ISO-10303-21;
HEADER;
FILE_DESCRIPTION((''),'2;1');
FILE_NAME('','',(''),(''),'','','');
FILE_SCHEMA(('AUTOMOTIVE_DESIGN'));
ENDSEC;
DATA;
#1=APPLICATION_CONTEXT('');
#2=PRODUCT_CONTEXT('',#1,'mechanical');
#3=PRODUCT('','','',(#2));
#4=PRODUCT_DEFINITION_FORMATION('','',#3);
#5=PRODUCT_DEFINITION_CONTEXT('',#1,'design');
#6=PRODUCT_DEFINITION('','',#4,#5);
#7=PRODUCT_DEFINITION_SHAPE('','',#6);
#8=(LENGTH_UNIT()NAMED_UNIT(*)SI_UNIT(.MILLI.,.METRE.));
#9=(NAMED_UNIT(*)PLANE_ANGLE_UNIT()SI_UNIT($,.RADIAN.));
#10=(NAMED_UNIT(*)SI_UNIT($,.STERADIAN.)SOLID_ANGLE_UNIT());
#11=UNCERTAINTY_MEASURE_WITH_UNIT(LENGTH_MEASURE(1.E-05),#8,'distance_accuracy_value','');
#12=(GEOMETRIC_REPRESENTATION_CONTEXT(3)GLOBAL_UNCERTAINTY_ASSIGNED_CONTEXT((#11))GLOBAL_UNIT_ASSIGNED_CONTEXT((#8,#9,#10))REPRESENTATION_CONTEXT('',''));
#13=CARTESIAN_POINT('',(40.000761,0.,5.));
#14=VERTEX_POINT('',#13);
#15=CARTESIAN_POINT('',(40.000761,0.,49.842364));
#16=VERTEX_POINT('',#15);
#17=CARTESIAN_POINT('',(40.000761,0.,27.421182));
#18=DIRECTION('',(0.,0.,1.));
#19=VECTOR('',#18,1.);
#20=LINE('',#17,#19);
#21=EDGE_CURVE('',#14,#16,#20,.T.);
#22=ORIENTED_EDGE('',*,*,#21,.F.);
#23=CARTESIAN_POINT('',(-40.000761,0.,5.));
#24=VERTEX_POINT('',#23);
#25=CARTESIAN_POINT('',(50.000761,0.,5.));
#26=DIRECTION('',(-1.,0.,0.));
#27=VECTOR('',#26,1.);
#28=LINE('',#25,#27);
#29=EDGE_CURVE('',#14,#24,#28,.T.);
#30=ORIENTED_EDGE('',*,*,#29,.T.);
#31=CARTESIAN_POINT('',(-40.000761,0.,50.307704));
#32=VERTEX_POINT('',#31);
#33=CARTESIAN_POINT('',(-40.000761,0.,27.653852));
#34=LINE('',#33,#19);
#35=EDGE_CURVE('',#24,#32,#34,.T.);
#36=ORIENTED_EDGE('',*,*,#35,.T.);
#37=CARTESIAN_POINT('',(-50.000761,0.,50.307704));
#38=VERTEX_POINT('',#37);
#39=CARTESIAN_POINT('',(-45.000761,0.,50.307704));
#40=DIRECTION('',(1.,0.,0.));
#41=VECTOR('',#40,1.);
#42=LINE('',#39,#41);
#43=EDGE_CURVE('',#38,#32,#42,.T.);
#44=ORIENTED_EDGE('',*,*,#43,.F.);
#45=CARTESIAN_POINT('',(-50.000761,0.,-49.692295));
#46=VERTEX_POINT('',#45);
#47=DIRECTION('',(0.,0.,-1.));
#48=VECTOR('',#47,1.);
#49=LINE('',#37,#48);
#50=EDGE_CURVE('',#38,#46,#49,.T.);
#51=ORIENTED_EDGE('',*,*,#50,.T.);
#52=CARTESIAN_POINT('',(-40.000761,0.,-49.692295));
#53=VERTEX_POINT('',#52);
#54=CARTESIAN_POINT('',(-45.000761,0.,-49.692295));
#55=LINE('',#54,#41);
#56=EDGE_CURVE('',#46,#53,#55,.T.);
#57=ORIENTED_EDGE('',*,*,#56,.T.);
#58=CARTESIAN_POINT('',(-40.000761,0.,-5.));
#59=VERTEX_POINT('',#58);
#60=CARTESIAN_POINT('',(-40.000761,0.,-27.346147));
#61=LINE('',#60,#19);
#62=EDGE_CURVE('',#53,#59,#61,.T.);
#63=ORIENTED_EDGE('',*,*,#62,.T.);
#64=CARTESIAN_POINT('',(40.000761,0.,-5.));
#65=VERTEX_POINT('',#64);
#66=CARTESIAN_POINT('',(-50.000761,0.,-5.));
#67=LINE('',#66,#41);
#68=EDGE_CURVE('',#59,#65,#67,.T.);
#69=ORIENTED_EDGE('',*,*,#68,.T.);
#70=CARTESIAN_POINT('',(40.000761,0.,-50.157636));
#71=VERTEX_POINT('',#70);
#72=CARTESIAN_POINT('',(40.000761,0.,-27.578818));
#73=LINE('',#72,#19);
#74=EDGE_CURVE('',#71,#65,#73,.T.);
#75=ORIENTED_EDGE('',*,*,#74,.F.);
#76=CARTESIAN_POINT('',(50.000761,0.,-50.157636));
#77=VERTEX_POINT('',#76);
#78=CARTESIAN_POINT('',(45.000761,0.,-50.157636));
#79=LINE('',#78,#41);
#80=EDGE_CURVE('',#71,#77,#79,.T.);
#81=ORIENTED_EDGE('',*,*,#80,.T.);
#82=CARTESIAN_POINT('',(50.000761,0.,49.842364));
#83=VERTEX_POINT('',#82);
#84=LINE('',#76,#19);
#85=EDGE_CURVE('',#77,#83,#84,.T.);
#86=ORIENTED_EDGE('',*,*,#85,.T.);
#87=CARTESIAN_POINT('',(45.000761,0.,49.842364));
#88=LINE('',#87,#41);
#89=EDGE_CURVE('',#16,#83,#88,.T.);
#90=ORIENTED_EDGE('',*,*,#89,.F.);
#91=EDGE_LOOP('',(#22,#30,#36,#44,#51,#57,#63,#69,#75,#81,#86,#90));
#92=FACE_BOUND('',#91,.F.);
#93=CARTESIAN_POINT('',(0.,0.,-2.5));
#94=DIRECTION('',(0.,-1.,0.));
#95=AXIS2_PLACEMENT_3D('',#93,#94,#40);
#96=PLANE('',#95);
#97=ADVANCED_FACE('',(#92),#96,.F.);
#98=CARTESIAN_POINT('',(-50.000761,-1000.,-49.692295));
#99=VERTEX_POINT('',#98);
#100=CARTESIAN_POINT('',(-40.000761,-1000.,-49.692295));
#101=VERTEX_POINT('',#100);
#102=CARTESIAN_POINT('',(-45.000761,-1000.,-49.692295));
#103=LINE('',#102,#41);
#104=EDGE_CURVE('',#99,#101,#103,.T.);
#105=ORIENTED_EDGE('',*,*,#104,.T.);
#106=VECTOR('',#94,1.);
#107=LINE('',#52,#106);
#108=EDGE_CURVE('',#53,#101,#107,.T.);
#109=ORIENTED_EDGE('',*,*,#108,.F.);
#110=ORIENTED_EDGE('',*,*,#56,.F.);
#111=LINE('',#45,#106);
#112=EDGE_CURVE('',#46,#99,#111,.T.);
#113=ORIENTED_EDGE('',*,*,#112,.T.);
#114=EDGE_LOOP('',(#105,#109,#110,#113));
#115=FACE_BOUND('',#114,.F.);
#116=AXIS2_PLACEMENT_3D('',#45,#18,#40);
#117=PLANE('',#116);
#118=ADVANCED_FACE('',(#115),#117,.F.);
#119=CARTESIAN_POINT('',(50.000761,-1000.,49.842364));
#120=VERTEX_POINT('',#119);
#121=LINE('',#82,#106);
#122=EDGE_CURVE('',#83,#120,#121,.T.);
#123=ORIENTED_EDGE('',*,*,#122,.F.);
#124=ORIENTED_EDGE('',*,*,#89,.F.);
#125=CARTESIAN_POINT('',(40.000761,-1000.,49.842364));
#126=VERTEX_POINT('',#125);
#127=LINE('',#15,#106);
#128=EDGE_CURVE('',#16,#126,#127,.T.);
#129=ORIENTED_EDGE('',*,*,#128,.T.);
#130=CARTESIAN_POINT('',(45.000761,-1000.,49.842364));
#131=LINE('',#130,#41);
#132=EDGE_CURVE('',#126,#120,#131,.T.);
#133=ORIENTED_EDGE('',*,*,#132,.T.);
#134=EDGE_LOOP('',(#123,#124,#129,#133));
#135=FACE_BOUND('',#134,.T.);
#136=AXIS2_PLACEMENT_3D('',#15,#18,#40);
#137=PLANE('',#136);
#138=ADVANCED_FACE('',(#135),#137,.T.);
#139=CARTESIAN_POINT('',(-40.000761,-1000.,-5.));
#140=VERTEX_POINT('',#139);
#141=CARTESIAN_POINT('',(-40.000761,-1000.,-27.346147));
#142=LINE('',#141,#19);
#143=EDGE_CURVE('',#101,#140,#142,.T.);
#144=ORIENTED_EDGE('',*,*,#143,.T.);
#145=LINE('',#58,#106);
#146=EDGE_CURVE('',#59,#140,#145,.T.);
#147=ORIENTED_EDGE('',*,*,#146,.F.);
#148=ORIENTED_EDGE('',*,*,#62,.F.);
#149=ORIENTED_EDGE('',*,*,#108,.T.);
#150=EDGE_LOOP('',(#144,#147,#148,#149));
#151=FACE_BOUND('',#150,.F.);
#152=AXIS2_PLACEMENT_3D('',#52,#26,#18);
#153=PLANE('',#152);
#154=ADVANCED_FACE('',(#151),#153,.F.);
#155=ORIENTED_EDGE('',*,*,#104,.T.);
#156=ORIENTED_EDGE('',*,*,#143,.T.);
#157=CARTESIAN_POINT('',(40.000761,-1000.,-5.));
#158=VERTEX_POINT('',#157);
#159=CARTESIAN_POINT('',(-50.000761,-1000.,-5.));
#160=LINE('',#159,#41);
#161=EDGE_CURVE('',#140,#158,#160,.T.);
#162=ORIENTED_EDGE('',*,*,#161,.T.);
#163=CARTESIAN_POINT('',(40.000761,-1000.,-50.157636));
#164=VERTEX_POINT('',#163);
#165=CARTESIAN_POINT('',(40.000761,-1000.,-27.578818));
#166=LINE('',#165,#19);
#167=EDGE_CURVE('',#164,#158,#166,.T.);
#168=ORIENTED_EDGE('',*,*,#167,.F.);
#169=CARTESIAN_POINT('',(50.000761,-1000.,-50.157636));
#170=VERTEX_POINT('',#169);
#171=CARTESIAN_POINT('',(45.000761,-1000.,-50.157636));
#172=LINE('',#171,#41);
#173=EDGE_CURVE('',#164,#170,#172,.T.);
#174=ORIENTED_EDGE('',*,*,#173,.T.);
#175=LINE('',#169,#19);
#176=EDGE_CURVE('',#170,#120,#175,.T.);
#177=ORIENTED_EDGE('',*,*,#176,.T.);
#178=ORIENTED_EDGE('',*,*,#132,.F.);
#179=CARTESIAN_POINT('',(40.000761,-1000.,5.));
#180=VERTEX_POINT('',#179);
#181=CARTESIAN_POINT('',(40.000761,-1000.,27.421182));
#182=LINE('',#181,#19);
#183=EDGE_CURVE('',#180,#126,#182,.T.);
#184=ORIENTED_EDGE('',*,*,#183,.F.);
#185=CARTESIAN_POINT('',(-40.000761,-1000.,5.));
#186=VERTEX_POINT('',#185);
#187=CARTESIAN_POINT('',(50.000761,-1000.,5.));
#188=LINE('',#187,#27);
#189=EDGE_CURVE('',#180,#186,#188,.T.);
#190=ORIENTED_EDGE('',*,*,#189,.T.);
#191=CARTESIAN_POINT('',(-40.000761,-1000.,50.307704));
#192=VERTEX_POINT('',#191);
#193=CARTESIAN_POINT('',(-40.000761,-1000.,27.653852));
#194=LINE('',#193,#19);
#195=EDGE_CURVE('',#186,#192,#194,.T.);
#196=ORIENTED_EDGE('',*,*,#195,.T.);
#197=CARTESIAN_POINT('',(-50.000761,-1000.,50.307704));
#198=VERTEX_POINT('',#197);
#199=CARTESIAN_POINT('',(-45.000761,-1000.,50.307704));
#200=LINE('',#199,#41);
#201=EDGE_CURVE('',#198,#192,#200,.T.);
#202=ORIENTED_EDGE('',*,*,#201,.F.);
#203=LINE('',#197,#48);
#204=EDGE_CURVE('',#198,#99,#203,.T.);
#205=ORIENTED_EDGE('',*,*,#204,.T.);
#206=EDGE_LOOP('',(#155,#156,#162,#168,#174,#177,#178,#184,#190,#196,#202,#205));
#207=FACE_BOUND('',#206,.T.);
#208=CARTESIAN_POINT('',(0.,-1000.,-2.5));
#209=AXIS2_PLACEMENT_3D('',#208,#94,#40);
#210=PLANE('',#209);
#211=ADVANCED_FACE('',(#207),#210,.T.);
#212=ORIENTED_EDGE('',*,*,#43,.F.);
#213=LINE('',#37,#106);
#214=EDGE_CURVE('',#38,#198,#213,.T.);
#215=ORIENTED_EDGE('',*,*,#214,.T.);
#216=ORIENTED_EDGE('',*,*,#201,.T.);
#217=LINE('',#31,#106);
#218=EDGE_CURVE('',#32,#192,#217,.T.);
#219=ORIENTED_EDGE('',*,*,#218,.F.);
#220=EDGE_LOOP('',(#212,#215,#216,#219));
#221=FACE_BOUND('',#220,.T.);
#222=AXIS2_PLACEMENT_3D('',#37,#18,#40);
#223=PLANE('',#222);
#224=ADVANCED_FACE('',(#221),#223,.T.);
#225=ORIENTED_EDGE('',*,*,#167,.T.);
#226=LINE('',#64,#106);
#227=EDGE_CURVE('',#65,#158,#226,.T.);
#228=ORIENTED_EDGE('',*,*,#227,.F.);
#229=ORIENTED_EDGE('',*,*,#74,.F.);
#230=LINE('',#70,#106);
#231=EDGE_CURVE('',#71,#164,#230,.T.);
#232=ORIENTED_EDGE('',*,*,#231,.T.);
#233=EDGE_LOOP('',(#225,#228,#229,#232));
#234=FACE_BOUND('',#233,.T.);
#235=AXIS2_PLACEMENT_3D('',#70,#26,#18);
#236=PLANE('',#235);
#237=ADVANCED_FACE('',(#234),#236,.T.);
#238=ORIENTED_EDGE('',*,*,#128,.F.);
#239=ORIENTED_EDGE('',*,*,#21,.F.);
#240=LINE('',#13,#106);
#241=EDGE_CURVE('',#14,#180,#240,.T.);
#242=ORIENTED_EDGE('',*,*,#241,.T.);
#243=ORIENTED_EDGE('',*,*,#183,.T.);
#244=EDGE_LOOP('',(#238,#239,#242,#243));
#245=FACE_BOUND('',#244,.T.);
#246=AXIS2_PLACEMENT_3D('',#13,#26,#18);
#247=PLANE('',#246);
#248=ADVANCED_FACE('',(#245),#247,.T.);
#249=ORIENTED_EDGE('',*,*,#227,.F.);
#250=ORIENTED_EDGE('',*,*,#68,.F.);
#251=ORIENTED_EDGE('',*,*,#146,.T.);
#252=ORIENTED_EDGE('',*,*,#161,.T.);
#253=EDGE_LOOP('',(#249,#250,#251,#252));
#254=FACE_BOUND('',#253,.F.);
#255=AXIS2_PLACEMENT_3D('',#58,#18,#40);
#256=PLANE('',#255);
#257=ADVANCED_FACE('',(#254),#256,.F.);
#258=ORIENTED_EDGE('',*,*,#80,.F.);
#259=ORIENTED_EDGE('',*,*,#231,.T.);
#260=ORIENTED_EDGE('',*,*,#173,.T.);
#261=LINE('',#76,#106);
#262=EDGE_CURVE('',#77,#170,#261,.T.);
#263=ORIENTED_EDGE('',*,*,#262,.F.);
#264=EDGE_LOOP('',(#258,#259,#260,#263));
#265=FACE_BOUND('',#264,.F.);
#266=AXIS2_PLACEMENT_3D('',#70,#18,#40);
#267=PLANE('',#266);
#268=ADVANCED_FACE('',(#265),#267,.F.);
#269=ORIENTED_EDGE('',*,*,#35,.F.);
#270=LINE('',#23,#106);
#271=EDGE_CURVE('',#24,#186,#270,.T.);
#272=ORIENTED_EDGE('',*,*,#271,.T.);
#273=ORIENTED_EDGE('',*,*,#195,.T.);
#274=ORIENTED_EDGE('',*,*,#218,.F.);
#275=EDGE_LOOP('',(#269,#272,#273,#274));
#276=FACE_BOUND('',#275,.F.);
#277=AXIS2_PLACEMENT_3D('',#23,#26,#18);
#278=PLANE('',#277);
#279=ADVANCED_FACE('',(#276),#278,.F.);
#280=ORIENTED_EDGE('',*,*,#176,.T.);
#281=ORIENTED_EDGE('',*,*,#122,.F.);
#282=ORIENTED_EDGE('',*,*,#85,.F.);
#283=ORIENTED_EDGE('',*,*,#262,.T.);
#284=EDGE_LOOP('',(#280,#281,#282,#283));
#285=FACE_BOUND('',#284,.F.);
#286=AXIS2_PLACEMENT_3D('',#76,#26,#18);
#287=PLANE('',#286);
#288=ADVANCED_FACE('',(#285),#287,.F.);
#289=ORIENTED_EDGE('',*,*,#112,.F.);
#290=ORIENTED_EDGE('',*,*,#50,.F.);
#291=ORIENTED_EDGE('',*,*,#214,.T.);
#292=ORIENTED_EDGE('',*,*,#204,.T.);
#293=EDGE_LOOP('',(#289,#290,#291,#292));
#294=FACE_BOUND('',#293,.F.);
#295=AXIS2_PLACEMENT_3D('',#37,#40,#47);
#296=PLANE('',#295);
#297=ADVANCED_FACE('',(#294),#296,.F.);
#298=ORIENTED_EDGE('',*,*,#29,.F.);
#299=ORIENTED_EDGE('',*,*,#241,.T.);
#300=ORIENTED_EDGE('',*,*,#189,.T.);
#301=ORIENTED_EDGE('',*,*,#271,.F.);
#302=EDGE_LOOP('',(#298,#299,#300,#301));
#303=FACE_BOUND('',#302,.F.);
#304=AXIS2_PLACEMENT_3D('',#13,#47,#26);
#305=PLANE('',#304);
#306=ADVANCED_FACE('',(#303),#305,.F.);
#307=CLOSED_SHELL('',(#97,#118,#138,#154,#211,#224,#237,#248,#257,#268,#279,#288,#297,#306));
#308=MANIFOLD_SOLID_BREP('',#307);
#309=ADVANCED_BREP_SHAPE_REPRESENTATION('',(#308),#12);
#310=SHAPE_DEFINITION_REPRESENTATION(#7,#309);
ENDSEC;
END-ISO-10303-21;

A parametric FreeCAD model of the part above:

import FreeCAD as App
import Part
import Sketcher
Q = App.Units.Quantity

doc = App.newDocument("Part")
body = doc.addObject("PartDesign::Body", "Body")

sketch1 = body.newObject("Sketcher::SketchObject", "Sketch")
sketch1.AttachmentSupport = (doc.getObject("XZ_Plane"), [""])
sketch1.MapMode = "FlatFace"
sketch1.addGeometry([
    Part.LineSegment(App.Vector(-40.000761, -5, 0), App.Vector(40.000761, -5, 0)),
    Part.LineSegment(App.Vector(40.000761, -5, 0), App.Vector(40.000761, -50.157636, 0)),
    Part.LineSegment(App.Vector(40.000761, -50.157636, 0), App.Vector(50.000761, -50.157636, 0)),
    Part.LineSegment(App.Vector(50.000761, -50.157636, 0), App.Vector(50.000761, 49.842364, 0)),
    Part.LineSegment(App.Vector(50.000761, 49.842364, 0), App.Vector(40.000761, 49.842364, 0)),
    Part.LineSegment(App.Vector(40.000761, 49.842364, 0), App.Vector(40.000761, 5, 0)),
    Part.LineSegment(App.Vector(40.000761, 5, 0), App.Vector(-40.000761, 5, 0)),
    Part.LineSegment(App.Vector(-40.000761, 5, 0), App.Vector(-40.000761, 50.307704, 0)),
    Part.LineSegment(App.Vector(-40.000761, 50.307704, 0), App.Vector(-50.000761, 50.307704, 0)),
    Part.LineSegment(App.Vector(-50.000761, 50.307704, 0), App.Vector(-50.000761, -49.692295, 0)),
    Part.LineSegment(App.Vector(-50.000761, -49.692295, 0), App.Vector(-40.000761, -49.692295, 0)),
    Part.LineSegment(App.Vector(-40.000761, -49.692295, 0), App.Vector(-40.000761, -5, 0)),
], False)
sketch1.addConstraint([
    Sketcher.Constraint("Coincident", 0, 2, 1, 1),
    Sketcher.Constraint("Coincident", 1, 2, 2, 1),
    Sketcher.Constraint("Coincident", 2, 2, 3, 1),
    Sketcher.Constraint("Coincident", 3, 2, 4, 1),
    Sketcher.Constraint("Coincident", 4, 2, 5, 1),
    Sketcher.Constraint("Coincident", 5, 2, 6, 1),
    Sketcher.Constraint("Coincident", 6, 2, 7, 1),
    Sketcher.Constraint("Coincident", 7, 2, 8, 1),
    Sketcher.Constraint("Coincident", 8, 2, 9, 1),
    Sketcher.Constraint("Coincident", 9, 2, 10, 1),
    Sketcher.Constraint("Coincident", 10, 2, 11, 1),
    Sketcher.Constraint("Coincident", 11, 2, 0, 1),
    Sketcher.Constraint("Horizontal", 0),
    Sketcher.Constraint("Vertical", 1),
    Sketcher.Constraint("Horizontal", 2),
    Sketcher.Constraint("Vertical", 3),
    Sketcher.Constraint("Horizontal", 4),
    Sketcher.Constraint("Vertical", 5),
    Sketcher.Constraint("Horizontal", 6),
    Sketcher.Constraint("Vertical", 7),
    Sketcher.Constraint("Horizontal", 8),
    Sketcher.Constraint("Vertical", 9),
    Sketcher.Constraint("Horizontal", 10),
    Sketcher.Constraint("Vertical", 11),
    Sketcher.Constraint("Symmetric", 0, 2, 6, 2, -1, 1),
    Sketcher.Constraint("Vertical", 1, 2, 4, 2),
    Sketcher.Constraint("Vertical", 7, 2, 10, 2),
    Sketcher.Constraint("Equal", 4, 8),
    Sketcher.Constraint("Equal", 3, 9),
    Sketcher.Constraint("DistanceX", 2, 1, 2, 2, Q("10 mm")),
    Sketcher.Constraint("DistanceY", 3, 1, 3, 2, Q("100 mm")),
    Sketcher.Constraint("DistanceY", 0, 2, -1, 1, Q("5 mm")),
    Sketcher.Constraint("DistanceX", 0, 1, 0, 2, Q("80.001522 mm")),
    Sketcher.Constraint("DistanceY", 1, 2, 1, 1, Q("45.157636 mm")),
    Sketcher.Constraint("DistanceY", 7, 1, 7, 2, Q("45.307704 mm")),
])
pad1 = body.newObject("PartDesign::Pad", "Pad")
pad1.Profile = sketch1
pad1.Length = 1000

doc.recompute()
